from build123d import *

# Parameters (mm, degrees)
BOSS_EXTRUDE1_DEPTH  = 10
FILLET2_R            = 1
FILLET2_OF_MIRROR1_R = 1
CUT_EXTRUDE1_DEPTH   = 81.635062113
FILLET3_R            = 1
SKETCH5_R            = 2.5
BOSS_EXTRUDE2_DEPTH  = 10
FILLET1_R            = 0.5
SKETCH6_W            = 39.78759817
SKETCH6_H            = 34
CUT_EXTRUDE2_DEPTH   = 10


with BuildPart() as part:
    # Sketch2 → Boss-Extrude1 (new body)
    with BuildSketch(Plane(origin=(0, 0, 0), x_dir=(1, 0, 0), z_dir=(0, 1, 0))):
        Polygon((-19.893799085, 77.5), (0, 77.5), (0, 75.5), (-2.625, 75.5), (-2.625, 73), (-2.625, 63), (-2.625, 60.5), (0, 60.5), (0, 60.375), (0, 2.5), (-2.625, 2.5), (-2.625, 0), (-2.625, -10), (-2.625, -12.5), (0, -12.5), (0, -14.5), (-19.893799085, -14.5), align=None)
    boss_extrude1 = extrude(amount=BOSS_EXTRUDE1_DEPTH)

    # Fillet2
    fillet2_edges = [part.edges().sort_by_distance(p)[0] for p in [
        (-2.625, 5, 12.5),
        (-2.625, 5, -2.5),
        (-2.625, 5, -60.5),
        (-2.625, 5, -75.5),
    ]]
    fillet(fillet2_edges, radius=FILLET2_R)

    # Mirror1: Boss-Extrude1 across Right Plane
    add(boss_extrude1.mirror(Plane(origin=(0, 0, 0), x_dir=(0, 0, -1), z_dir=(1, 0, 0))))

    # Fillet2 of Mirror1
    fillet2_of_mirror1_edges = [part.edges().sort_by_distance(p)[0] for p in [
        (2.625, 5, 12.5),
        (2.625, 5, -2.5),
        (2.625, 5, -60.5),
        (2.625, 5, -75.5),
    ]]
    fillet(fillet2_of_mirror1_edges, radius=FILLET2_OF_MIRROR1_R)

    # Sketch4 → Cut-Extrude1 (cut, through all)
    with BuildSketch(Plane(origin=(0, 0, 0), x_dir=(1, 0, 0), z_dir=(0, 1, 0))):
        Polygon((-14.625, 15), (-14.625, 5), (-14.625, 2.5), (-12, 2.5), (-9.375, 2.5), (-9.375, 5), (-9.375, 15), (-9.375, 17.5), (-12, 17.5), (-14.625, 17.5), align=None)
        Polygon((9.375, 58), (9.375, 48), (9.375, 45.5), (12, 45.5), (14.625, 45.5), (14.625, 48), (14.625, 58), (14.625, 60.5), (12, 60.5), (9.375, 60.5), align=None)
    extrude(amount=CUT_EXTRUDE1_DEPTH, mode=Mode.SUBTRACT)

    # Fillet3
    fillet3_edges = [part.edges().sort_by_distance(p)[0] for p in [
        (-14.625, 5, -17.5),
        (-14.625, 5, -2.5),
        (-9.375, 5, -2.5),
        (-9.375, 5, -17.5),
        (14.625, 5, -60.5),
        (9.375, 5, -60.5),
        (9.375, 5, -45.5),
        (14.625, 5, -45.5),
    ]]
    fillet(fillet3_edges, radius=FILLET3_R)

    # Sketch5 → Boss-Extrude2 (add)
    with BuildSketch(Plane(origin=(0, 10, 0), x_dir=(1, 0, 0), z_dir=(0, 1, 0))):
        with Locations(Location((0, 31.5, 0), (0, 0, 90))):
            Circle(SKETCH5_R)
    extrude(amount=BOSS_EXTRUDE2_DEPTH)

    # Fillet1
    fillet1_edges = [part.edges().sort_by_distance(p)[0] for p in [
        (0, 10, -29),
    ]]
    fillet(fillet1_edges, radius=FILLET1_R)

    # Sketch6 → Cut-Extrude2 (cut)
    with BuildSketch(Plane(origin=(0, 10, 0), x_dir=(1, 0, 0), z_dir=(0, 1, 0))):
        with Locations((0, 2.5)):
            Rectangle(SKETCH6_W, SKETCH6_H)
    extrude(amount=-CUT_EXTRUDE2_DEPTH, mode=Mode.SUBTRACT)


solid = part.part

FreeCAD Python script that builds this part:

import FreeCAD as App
import Part
import Sketcher

V = App.Vector


def edges_at(feature, points):
    """Names of the edges that pass closest to the given points."""
    edges = feature.Shape.Edges
    near = lambda p: min(range(len(edges)), key=lambda i: edges[i].distToShape(Part.Vertex(*p))[0])
    return sorted({f"Edge{near(p) + 1}" for p in points})

doc = App.newDocument("Part")
body = doc.addObject("PartDesign::Body", "Body")

sketch1 = body.newObject("Sketcher::SketchObject", "Sketch")
sketch1.AttachmentSupport = (doc.getObject("XZ_Plane"), [""])
sketch1.MapMode = "FlatFace"
sketch1.addGeometry([
    Part.LineSegment(V(0, -77.5, 0), V(-19.9, -77.5, 0)),
    Part.LineSegment(V(-19.9, -77.5, 0), V(-19.9, 14.5, 0)),
    Part.LineSegment(V(-19.9, 14.5, 0), V(0, 14.5, 0)),
    Part.LineSegment(V(0, 14.5, 0), V(0, 12.5, 0)),
    Part.LineSegment(V(0, 12.5, 0), V(-2.6, 12.5, 0)),
    Part.LineSegment(V(-2.6, 12.5, 0), V(-2.6, -2.5, 0)),
    Part.LineSegment(V(-2.6, -2.5, 0), V(0, -2.5, 0)),
    Part.LineSegment(V(0, -2.5, 0), V(0, -60.5, 0)),
    Part.LineSegment(V(0, -60.5, 0), V(-2.6, -60.5, 0)),
    Part.LineSegment(V(-2.6, -60.5, 0), V(-2.6, -75.5, 0)),
    Part.LineSegment(V(-2.6, -75.5, 0), V(0, -75.5, 0)),
    Part.LineSegment(V(0, -75.5, 0), V(0, -77.5, 0)),
], False)
sketch1.addConstraint([
    Sketcher.Constraint("Coincident", 0, 2, 1, 1),
    Sketcher.Constraint("Coincident", 1, 2, 2, 1),
    Sketcher.Constraint("Coincident", 2, 2, 3, 1),
    Sketcher.Constraint("Coincident", 3, 2, 4, 1),
    Sketcher.Constraint("Coincident", 4, 2, 5, 1),
    Sketcher.Constraint("Coincident", 5, 2, 6, 1),
    Sketcher.Constraint("Coincident", 6, 2, 7, 1),
    Sketcher.Constraint("Coincident", 7, 2, 8, 1),
    Sketcher.Constraint("Coincident", 8, 2, 9, 1),
    Sketcher.Constraint("Coincident", 9, 2, 10, 1),
    Sketcher.Constraint("Coincident", 10, 2, 11, 1),
    Sketcher.Constraint("Coincident", 11, 2, 0, 1),
    Sketcher.Constraint("Horizontal", 0),
    Sketcher.Constraint("Vertical", 1),
    Sketcher.Constraint("Horizontal", 2),
    Sketcher.Constraint("Vertical", 3),
    Sketcher.Constraint("Horizontal", 4),
    Sketcher.Constraint("Vertical", 5),
    Sketcher.Constraint("Horizontal", 6),
    Sketcher.Constraint("Vertical", 7),
    Sketcher.Constraint("Horizontal", 8),
    Sketcher.Constraint("Vertical", 9),
    Sketcher.Constraint("Horizontal", 10),
    Sketcher.Constraint("Vertical", 11),
    Sketcher.Constraint("PointOnObject", 2, 2, -2),
    Sketcher.Constraint("PointOnObject", 6, 2, -2),
    Sketcher.Constraint("PointOnObject", 10, 2, -2),
    Sketcher.Constraint("Vertical", 5, 2, 8, 2),
    Sketcher.Constraint("Equal", 5, 9),
    Sketcher.Constraint("Equal", 3, 11),
    Sketcher.Constraint("DistanceY", 1, 1, 1, 2, 92.0),
    Sketcher.Constraint("DistanceY", 3, 2, 3, 1, 2.0),
    Sketcher.Constraint("DistanceY", 5, 2, 5, 1, 15.0),
    Sketcher.Constraint("DistanceY", 0, 2, -1, 1, 77.5),
    Sketcher.Constraint("DistanceX", 4, 2, 4, 1, 2.625),
    Sketcher.Constraint("DistanceX", 0, 2, 0, 1, 19.893799),
])
pad1 = body.newObject("PartDesign::Pad", "Pad")
pad1.Profile = sketch1
pad1.Length = 10
pad1.Reversed = True
doc.recompute()

fillet = body.newObject("PartDesign::Fillet", "Fillet")
fillet.Base = (pad1, edges_at(pad1, [
    (-2.625, 5, 12.5),
    (-2.625, 5, -2.5),
    (-2.625, 5, -60.5),
    (-2.625, 5, -75.5),
]))
fillet.Radius = 1
doc.recompute()

mirrored = body.newObject("PartDesign::Mirrored", "Mirrored")
mirrored.Originals = [pad1]
mirrored.MirrorPlane = (doc.getObject("YZ_Plane"), [""])
body.Tip = mirrored
doc.recompute()

fillet2 = body.newObject("PartDesign::Fillet", "Fillet001")
fillet2.Base = (mirrored, edges_at(mirrored, [
    (2.625, 5, 12.5),
    (2.625, 5, -2.5),
    (2.625, 5, -60.5),
    (2.625, 5, -75.5),
]))
fillet2.Radius = 1

sketch2 = body.newObject("Sketcher::SketchObject", "Sketch001")
sketch2.AttachmentSupport = (doc.getObject("XZ_Plane"), [""])
sketch2.MapMode = "FlatFace"
sketch2.addGeometry([
    Part.LineSegment(V(-15, -2, 0), V(-9, -2, 0)),
    Part.LineSegment(V(-9, -2, 0), V(-9, -18, 0)),
    Part.LineSegment(V(-9, -18, 0), V(-15, -18, 0)),
    Part.LineSegment(V(-15, -18, 0), V(-15, -2, 0)),
    Part.LineSegment(V(9, -46, 0), V(15, -46, 0)),
    Part.LineSegment(V(15, -46, 0), V(15, -60, 0)),
    Part.LineSegment(V(15, -60, 0), V(9, -60, 0)),
    Part.LineSegment(V(9, -60, 0), V(9, -46, 0)),
], False)
sketch2.addConstraint([
    Sketcher.Constraint("Coincident", 0, 2, 1, 1),
    Sketcher.Constraint("Coincident", 1, 2, 2, 1),
    Sketcher.Constraint("Coincident", 2, 2, 3, 1),
    Sketcher.Constraint("Coincident", 3, 2, 0, 1),
    Sketcher.Constraint("Coincident", 4, 2, 5, 1),
    Sketcher.Constraint("Coincident", 5, 2, 6, 1),
    Sketcher.Constraint("Coincident", 6, 2, 7, 1),
    Sketcher.Constraint("Coincident", 7, 2, 4, 1),
    Sketcher.Constraint("Horizontal", 0),
    Sketcher.Constraint("Vertical", 1),
    Sketcher.Constraint("Horizontal", 2),
    Sketcher.Constraint("Vertical", 3),
    Sketcher.Constraint("Horizontal", 4),
    Sketcher.Constraint("Vertical", 5),
    Sketcher.Constraint("Horizontal", 6),
    Sketcher.Constraint("Vertical", 7),
    Sketcher.Constraint("Equal", 2, 4),
    Sketcher.Constraint("Equal", 3, 5),
    Sketcher.Constraint("DistanceY", 1, 2, 1, 1, 15.0),
    Sketcher.Constraint("DistanceX", 1, 2, 4, 2, 24.0),
    Sketcher.Constraint("DistanceY", 4, 2, 1, 2, 28.0),
    Sketcher.Constraint("DistanceX", 0, 1, 0, 2, 5.25),
    Sketcher.Constraint("DistanceY", 0, 2, -1, 1, 2.5),
    Sketcher.Constraint("DistanceX", 0, 2, -1, 1, 9.375),
])
pocket1 = body.newObject("PartDesign::Pocket", "Pocket")
pocket1.Profile = sketch2
pocket1.Type = "ThroughAll"
doc.recompute()

fillet3 = body.newObject("PartDesign::Fillet", "Fillet002")
fillet3.Base = (pocket1, edges_at(pocket1, [
    (-14.625, 5, -17.5),
    (-14.625, 5, -2.5),
    (-9.375, 5, -2.5),
    (-9.375, 5, -17.5),
    (14.625, 5, -60.5),
    (9.375, 5, -60.5),
    (9.375, 5, -45.5),
    (14.625, 5, -45.5),
]))
fillet3.Radius = 1

sketch3 = body.newObject("Sketcher::SketchObject", "Sketch002")
sketch3.AttachmentSupport = (doc.getObject("XZ_Plane"), [""])
sketch3.MapMode = "FlatFace"
sketch3.AttachmentOffset = App.Placement(V(0, 0, -10), App.Rotation())
sketch3.addGeometry(Part.Circle(V(0, -31.5, 0), V(0, 0, 1), 2.5), False)
sketch3.addConstraint([
    Sketcher.Constraint("PointOnObject", 0, 3, -2),
    Sketcher.Constraint("Diameter", 0, 5.0),
    Sketcher.Constraint("DistanceY", 0, 3, -1, 1, 31.5),
])
pad2 = body.newObject("PartDesign::Pad", "Pad001")
pad2.Profile = sketch3
pad2.Length = 10
pad2.Reversed = True
doc.recompute()

fillet4 = body.newObject("PartDesign::Fillet", "Fillet003")
fillet4.Base = (pad2, edges_at(pad2, [(0, 10, -29)]))
fillet4.Radius = 0.5

sketch4 = body.newObject("Sketcher::SketchObject", "Sketch003")
sketch4.AttachmentSupport = (doc.getObject("XZ_Plane"), [""])
sketch4.MapMode = "FlatFace"
sketch4.AttachmentOffset = App.Placement(V(0, 0, -10), App.Rotation())
sketch4.addGeometry([
    Part.LineSegment(V(-20, -20, 0), V(-20, 14, 0)),
    Part.LineSegment(V(-20, 14, 0), V(20, 14, 0)),
    Part.LineSegment(V(20, 14, 0), V(20, -20, 0)),
    Part.LineSegment(V(20, -20, 0), V(-20, -20, 0)),
], False)
sketch4.addConstraint([
    Sketcher.Constraint("Coincident", 0, 2, 1, 1),
    Sketcher.Constraint("Coincident", 1, 2, 2, 1),
    Sketcher.Constraint("Coincident", 2, 2, 3, 1),
    Sketcher.Constraint("Coincident", 3, 2, 0, 1),
    Sketcher.Constraint("Vertical", 0),
    Sketcher.Constraint("Horizontal", 1),
    Sketcher.Constraint("Vertical", 2),
    Sketcher.Constraint("Horizontal", 3),
    Sketcher.Constraint("DistanceY", 0, 1, 0, 2, 34.0),
    Sketcher.Constraint("DistanceY", -1, 1, 0, 2, 14.5),
    Sketcher.Constraint("DistanceX", 1, 1, 1, 2, 39.787598),
    Sketcher.Constraint("DistanceX", 0, 2, -1, 1, 19.893799),
])
pocket2 = body.newObject("PartDesign::Pocket", "Pocket001")
pocket2.Profile = sketch4
pocket2.Length = 10
pocket2.Reversed = True

doc.recompute()
